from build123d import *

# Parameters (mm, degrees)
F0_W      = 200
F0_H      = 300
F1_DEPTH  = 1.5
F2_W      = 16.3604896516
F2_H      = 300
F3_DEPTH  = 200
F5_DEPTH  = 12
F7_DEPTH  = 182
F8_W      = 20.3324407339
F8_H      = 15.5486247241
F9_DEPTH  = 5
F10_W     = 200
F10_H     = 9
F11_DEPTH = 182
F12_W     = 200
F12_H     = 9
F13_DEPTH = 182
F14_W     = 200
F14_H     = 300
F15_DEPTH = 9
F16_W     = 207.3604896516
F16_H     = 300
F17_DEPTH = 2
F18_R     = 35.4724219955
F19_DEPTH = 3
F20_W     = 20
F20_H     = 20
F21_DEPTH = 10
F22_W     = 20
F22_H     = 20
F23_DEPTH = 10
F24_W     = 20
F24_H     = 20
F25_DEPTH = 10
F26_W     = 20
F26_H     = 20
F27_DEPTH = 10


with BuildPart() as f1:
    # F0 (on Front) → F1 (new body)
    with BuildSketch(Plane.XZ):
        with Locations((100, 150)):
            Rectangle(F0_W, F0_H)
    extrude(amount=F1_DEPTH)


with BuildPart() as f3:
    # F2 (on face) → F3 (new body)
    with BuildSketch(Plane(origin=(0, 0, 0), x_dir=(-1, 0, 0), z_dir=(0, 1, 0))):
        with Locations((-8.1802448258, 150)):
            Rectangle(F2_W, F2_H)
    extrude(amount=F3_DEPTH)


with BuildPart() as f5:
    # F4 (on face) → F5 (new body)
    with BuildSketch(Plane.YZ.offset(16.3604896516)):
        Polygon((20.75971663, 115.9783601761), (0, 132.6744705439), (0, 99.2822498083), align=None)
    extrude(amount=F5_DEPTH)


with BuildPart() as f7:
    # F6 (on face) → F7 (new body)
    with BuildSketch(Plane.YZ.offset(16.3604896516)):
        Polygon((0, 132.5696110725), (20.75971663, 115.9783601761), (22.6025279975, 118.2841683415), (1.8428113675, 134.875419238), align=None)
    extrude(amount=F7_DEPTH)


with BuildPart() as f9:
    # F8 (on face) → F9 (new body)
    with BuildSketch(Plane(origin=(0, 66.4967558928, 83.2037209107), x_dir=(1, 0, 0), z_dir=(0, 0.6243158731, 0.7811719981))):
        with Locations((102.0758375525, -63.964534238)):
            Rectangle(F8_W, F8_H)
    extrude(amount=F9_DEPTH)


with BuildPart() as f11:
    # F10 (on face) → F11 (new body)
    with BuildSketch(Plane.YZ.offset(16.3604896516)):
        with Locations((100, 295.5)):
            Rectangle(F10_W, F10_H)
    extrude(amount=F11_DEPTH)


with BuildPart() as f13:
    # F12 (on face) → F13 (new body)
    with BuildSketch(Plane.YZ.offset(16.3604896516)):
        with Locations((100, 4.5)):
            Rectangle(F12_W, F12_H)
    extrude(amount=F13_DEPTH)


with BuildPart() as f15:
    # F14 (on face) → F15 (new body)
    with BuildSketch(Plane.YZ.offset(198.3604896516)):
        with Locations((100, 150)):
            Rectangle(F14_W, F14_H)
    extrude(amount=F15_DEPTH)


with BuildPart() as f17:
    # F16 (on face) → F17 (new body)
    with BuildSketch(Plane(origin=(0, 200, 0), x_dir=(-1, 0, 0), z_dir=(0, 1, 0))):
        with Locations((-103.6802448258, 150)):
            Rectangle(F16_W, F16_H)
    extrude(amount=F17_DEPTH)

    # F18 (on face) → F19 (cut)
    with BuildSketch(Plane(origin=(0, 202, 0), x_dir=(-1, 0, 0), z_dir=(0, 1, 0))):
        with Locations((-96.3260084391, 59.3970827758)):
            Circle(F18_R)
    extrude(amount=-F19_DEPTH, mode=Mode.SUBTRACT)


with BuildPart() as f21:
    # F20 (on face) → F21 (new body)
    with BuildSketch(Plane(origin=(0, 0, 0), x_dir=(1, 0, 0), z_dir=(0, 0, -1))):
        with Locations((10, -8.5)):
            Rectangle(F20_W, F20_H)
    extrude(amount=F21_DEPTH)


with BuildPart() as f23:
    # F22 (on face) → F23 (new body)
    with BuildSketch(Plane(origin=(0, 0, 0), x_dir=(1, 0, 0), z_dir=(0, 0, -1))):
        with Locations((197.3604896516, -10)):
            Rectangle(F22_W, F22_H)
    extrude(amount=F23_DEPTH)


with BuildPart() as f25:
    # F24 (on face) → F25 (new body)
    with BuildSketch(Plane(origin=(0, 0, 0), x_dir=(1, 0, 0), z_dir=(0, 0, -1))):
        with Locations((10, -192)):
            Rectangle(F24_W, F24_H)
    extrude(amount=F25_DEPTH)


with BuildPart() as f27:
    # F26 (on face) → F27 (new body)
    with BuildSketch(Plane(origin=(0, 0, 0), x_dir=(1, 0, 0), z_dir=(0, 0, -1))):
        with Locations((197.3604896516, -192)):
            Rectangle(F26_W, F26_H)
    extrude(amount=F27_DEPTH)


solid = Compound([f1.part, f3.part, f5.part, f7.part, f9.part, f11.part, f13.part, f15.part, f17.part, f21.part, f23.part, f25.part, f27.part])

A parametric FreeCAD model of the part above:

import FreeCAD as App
import Part
import Sketcher

V = App.Vector
Q = App.Units.Quantity

doc = App.newDocument("Part")
body = doc.addObject("PartDesign::Body", "Body")

sketch1 = doc.addObject("Sketcher::SketchObject", "Sketch")
body.addObject(sketch1)
sketch1.AttachmentSupport = (doc.XZ_Plane, [""])
sketch1.MapMode = "FlatFace"
sketch1.addGeometry([
    Part.LineSegment(V(0, 300, 0), V(0, 0, 0)),
    Part.LineSegment(V(0, 0, 0), V(200, 0, 0)),
    Part.LineSegment(V(200, 0, 0), V(200, 300, 0)),
    Part.LineSegment(V(200, 300, 0), V(0, 300, 0)),
], False)
sketch1.addConstraint([
    Sketcher.Constraint("Coincident", 0, 2, 1, 1),
    Sketcher.Constraint("Coincident", 1, 2, 2, 1),
    Sketcher.Constraint("Coincident", 2, 2, 3, 1),
    Sketcher.Constraint("Coincident", 3, 2, 0, 1),
    Sketcher.Constraint("Vertical", 0),
    Sketcher.Constraint("Horizontal", 1),
    Sketcher.Constraint("Vertical", 2),
    Sketcher.Constraint("Horizontal", 3),
    Sketcher.Constraint("Coincident", 0, 2, -1, 1),
    Sketcher.Constraint("DistanceX", 1, 1, 1, 2, Q("200 mm")),
    Sketcher.Constraint("DistanceY", 0, 2, 0, 1, Q("300 mm")),
])
pad1 = doc.addObject("PartDesign::Pad", "Pad")
body.addObject(pad1)
pad1.Profile = sketch1
pad1.Length = 1.5
body2 = doc.addObject("PartDesign::Body", "Body001")

sketch2 = doc.addObject("Sketcher::SketchObject", "Sketch001")
body2.addObject(sketch2)
sketch2.AttachmentSupport = (doc.getObject("XZ_Plane001"), [""])
sketch2.MapMode = "FlatFace"
sketch2.addGeometry([
    Part.LineSegment(V(16, 300, 0), V(16, 0, 0)),
    Part.LineSegment(V(16, 0, 0), V(0, 0, 0)),
    Part.LineSegment(V(0, 0, 0), V(0, 300, 0)),
    Part.LineSegment(V(0, 300, 0), V(16, 300, 0)),
], False)
sketch2.addConstraint([
    Sketcher.Constraint("Coincident", 0, 2, 1, 1),
    Sketcher.Constraint("Coincident", 1, 2, 2, 1),
    Sketcher.Constraint("Coincident", 2, 2, 3, 1),
    Sketcher.Constraint("Coincident", 3, 2, 0, 1),
    Sketcher.Constraint("Vertical", 0),
    Sketcher.Constraint("Horizontal", 1),
    Sketcher.Constraint("Vertical", 2),
    Sketcher.Constraint("Horizontal", 3),
    Sketcher.Constraint("Coincident", 1, 2, -1, 1),
    Sketcher.Constraint("DistanceY", 0, 2, 0, 1, Q("300 mm")),
    Sketcher.Constraint("DistanceX", 1, 2, 1, 1, Q("16.36049 mm")),
])
pad2 = doc.addObject("PartDesign::Pad", "Pad001")
body2.addObject(pad2)
pad2.Profile = sketch2
pad2.Length = 200
pad2.Reversed = True
body3 = doc.addObject("PartDesign::Body", "Body002")

sketch3 = doc.addObject("Sketcher::SketchObject", "Sketch002")
body3.addObject(sketch3)
sketch3.AttachmentSupport = (doc.getObject("YZ_Plane002"), [""])
sketch3.MapMode = "FlatFace"
sketch3.AttachmentOffset = App.Placement(V(0, 0, 16.36049), App.Rotation())
sketch3.addGeometry([
    Part.LineSegment(V(21, 116, 0), V(0, 133, 0)),
    Part.LineSegment(V(0, 133, 0), V(0, 99, 0)),
    Part.LineSegment(V(0, 99, 0), V(21, 116, 0)),
], False)
sketch3.addConstraint([
    Sketcher.Constraint("Coincident", 0, 2, 1, 1),
    Sketcher.Constraint("Coincident", 1, 2, 2, 1),
    Sketcher.Constraint("Coincident", 2, 2, 0, 1),
    Sketcher.Constraint("Vertical", 1),
    Sketcher.Constraint("PointOnObject", 0, 2, -2),
    Sketcher.Constraint("Equal", 0, 2),
    Sketcher.Constraint("DistanceY", 1, 2, 1, 1, Q("33.392221 mm")),
    Sketcher.Constraint("Distance", 0, Q("26.640682 mm")),
    Sketcher.Constraint("DistanceY", -1, 1, 0, 2, Q("132.674471 mm")),
])
pad3 = doc.addObject("PartDesign::Pad", "Pad002")
body3.addObject(pad3)
pad3.Profile = sketch3
pad3.Length = 12
body4 = doc.addObject("PartDesign::Body", "Body003")

sketch4 = doc.addObject("Sketcher::SketchObject", "Sketch003")
body4.addObject(sketch4)
sketch4.AttachmentSupport = (doc.getObject("YZ_Plane003"), [""])
sketch4.MapMode = "FlatFace"
sketch4.AttachmentOffset = App.Placement(V(0, 0, 16.36049), App.Rotation())
sketch4.addGeometry([
    Part.LineSegment(V(0, 132.6, 0), V(20.8, 116, 0)),
    Part.LineSegment(V(20.8, 116, 0), V(22.6, 118.3, 0)),
    Part.LineSegment(V(22.6, 118.3, 0), V(1.8, 134.9, 0)),
    Part.LineSegment(V(1.8, 134.9, 0), V(0, 132.6, 0)),
], False)
sketch4.addConstraint([
    Sketcher.Constraint("Coincident", 0, 2, 1, 1),
    Sketcher.Constraint("Coincident", 1, 2, 2, 1),
    Sketcher.Constraint("Coincident", 2, 2, 3, 1),
    Sketcher.Constraint("Coincident", 3, 2, 0, 1),
    Sketcher.Constraint("PointOnObject", 3, 2, -2),
    Sketcher.Constraint("Perpendicular", 0, 1),
    Sketcher.Constraint("Perpendicular", 1, 2),
    Sketcher.Constraint("Perpendicular", 2, 3),
    Sketcher.Constraint("Distance", 0, Q("26.575091 mm")),
    Sketcher.Constraint("Distance", 1, Q("2.951729 mm")),
    Sketcher.Constraint("DistanceY", -1, 1, 0, 2, Q("115.97836 mm")),
    Sketcher.Constraint("DistanceY", -1, 1, 1, 2, Q("118.284168 mm")),
])
pad4 = doc.addObject("PartDesign::Pad", "Pad003")
body4.addObject(pad4)
pad4.Profile = sketch4
pad4.Length = 182
body5 = doc.addObject("PartDesign::Body", "Body004")

sketch5 = doc.addObject("Sketcher::SketchObject", "Sketch004")
body5.addObject(sketch5)
sketch5.Placement = App.Placement(V(0, 66.496756, 83.203721), App.Rotation(V(1, 0, 0), V(0, 0.781171998, -0.624315873), V(0, 0.624315873, 0.781171998), "ZXY"))
sketch5.addGeometry([
    Part.LineSegment(V(92, -56, 0), V(92, -72, 0)),
    Part.LineSegment(V(92, -72, 0), V(112, -72, 0)),
    Part.LineSegment(V(112, -72, 0), V(112, -56, 0)),
    Part.LineSegment(V(112, -56, 0), V(92, -56, 0)),
], False)
sketch5.addConstraint([
    Sketcher.Constraint("Coincident", 0, 2, 1, 1),
    Sketcher.Constraint("Coincident", 1, 2, 2, 1),
    Sketcher.Constraint("Coincident", 2, 2, 3, 1),
    Sketcher.Constraint("Coincident", 3, 2, 0, 1),
    Sketcher.Constraint("Vertical", 0),
    Sketcher.Constraint("Horizontal", 1),
    Sketcher.Constraint("Vertical", 2),
    Sketcher.Constraint("Horizontal", 3),
    Sketcher.Constraint("DistanceX", 1, 1, 1, 2, Q("20.332441 mm")),
    Sketcher.Constraint("DistanceY", 0, 2, 0, 1, Q("15.548625 mm")),
    Sketcher.Constraint("DistanceY", 2, 2, -1, 1, Q("56.190222 mm")),
    Sketcher.Constraint("DistanceX", -1, 1, 0, 2, Q("91.909617 mm")),
])
pad5 = doc.addObject("PartDesign::Pad", "Pad004")
body5.addObject(pad5)
pad5.Profile = sketch5
pad5.Length = 5
body6 = doc.addObject("PartDesign::Body", "Body005")

sketch6 = doc.addObject("Sketcher::SketchObject", "Sketch005")
body6.addObject(sketch6)
sketch6.AttachmentSupport = (doc.getObject("YZ_Plane005"), [""])
sketch6.MapMode = "FlatFace"
sketch6.AttachmentOffset = App.Placement(V(0, 0, 16.36049), App.Rotation())
sketch6.addGeometry([
    Part.LineSegment(V(0, 300, 0), V(0, 291, 0)),
    Part.LineSegment(V(0, 291, 0), V(200, 291, 0)),
    Part.LineSegment(V(200, 291, 0), V(200, 300, 0)),
    Part.LineSegment(V(200, 300, 0), V(0, 300, 0)),
], False)
sketch6.addConstraint([
    Sketcher.Constraint("Coincident", 0, 2, 1, 1),
    Sketcher.Constraint("Coincident", 1, 2, 2, 1),
    Sketcher.Constraint("Coincident", 2, 2, 3, 1),
    Sketcher.Constraint("Coincident", 3, 2, 0, 1),
    Sketcher.Constraint("Vertical", 0),
    Sketcher.Constraint("Horizontal", 1),
    Sketcher.Constraint("Vertical", 2),
    Sketcher.Constraint("Horizontal", 3),
    Sketcher.Constraint("PointOnObject", 0, 2, -2),
    Sketcher.Constraint("DistanceX", 1, 1, 1, 2, Q("200 mm")),
    Sketcher.Constraint("DistanceY", 0, 2, 0, 1, Q("9 mm")),
    Sketcher.Constraint("DistanceY", -1, 1, 0, 2, Q("291 mm")),
])
pad6 = doc.addObject("PartDesign::Pad", "Pad005")
body6.addObject(pad6)
pad6.Profile = sketch6
pad6.Length = 182
body7 = doc.addObject("PartDesign::Body", "Body006")

sketch7 = doc.addObject("Sketcher::SketchObject", "Sketch006")
body7.addObject(sketch7)
sketch7.AttachmentSupport = (doc.getObject("YZ_Plane006"), [""])
sketch7.MapMode = "FlatFace"
sketch7.AttachmentOffset = App.Placement(V(0, 0, 16.36049), App.Rotation())
sketch7.addGeometry([
    Part.LineSegment(V(0, 9, 0), V(0, 0, 0)),
    Part.LineSegment(V(0, 0, 0), V(200, 0, 0)),
    Part.LineSegment(V(200, 0, 0), V(200, 9, 0)),
    Part.LineSegment(V(200, 9, 0), V(0, 9, 0)),
], False)
sketch7.addConstraint([
    Sketcher.Constraint("Coincident", 0, 2, 1, 1),
    Sketcher.Constraint("Coincident", 1, 2, 2, 1),
    Sketcher.Constraint("Coincident", 2, 2, 3, 1),
    Sketcher.Constraint("Coincident", 3, 2, 0, 1),
    Sketcher.Constraint("Vertical", 0),
    Sketcher.Constraint("Horizontal", 1),
    Sketcher.Constraint("Vertical", 2),
    Sketcher.Constraint("Horizontal", 3),
    Sketcher.Constraint("Coincident", 0, 2, -1, 1),
    Sketcher.Constraint("DistanceX", 1, 1, 1, 2, Q("200 mm")),
    Sketcher.Constraint("DistanceY", 0, 2, 0, 1, Q("9 mm")),
])
pad7 = doc.addObject("PartDesign::Pad", "Pad006")
body7.addObject(pad7)
pad7.Profile = sketch7
pad7.Length = 182
body8 = doc.addObject("PartDesign::Body", "Body007")

sketch8 = doc.addObject("Sketcher::SketchObject", "Sketch007")
body8.addObject(sketch8)
sketch8.AttachmentSupport = (doc.getObject("YZ_Plane007"), [""])
sketch8.MapMode = "FlatFace"
sketch8.AttachmentOffset = App.Placement(V(0, 0, 198.36049), App.Rotation())
sketch8.addGeometry([
    Part.LineSegment(V(0, 300, 0), V(0, 0, 0)),
    Part.LineSegment(V(0, 0, 0), V(200, 0, 0)),
    Part.LineSegment(V(200, 0, 0), V(200, 300, 0)),
    Part.LineSegment(V(200, 300, 0), V(0, 300, 0)),
], False)
sketch8.addConstraint([
    Sketcher.Constraint("Coincident", 0, 2, 1, 1),
    Sketcher.Constraint("Coincident", 1, 2, 2, 1),
    Sketcher.Constraint("Coincident", 2, 2, 3, 1),
    Sketcher.Constraint("Coincident", 3, 2, 0, 1),
    Sketcher.Constraint("Vertical", 0),
    Sketcher.Constraint("Horizontal", 1),
    Sketcher.Constraint("Vertical", 2),
    Sketcher.Constraint("Horizontal", 3),
    Sketcher.Constraint("Coincident", 0, 2, -1, 1),
    Sketcher.Constraint("DistanceX", 1, 1, 1, 2, Q("200 mm")),
    Sketcher.Constraint("DistanceY", 0, 2, 0, 1, Q("300 mm")),
])
pad8 = doc.addObject("PartDesign::Pad", "Pad007")
body8.addObject(pad8)
pad8.Profile = sketch8
pad8.Length = 9
body9 = doc.addObject("PartDesign::Body", "Body008")

sketch9 = doc.addObject("Sketcher::SketchObject", "Sketch008")
body9.addObject(sketch9)
sketch9.AttachmentSupport = (doc.getObject("XZ_Plane008"), [""])
sketch9.MapMode = "FlatFace"
sketch9.AttachmentOffset = App.Placement(V(0, 0, -200), App.Rotation())
sketch9.addGeometry([
    Part.LineSegment(V(207, 300, 0), V(207, 0, 0)),
    Part.LineSegment(V(207, 0, 0), V(0, 0, 0)),
    Part.LineSegment(V(0, 0, 0), V(0, 300, 0)),
    Part.LineSegment(V(0, 300, 0), V(207, 300, 0)),
], False)
sketch9.addConstraint([
    Sketcher.Constraint("Coincident", 0, 2, 1, 1),
    Sketcher.Constraint("Coincident", 1, 2, 2, 1),
    Sketcher.Constraint("Coincident", 2, 2, 3, 1),
    Sketcher.Constraint("Coincident", 3, 2, 0, 1),
    Sketcher.Constraint("Vertical", 0),
    Sketcher.Constraint("Horizontal", 1),
    Sketcher.Constraint("Vertical", 2),
    Sketcher.Constraint("Horizontal", 3),
    Sketcher.Constraint("Coincident", 1, 2, -1, 1),
    Sketcher.Constraint("DistanceY", 0, 2, 0, 1, Q("300 mm")),
    Sketcher.Constraint("DistanceX", 1, 2, 1, 1, Q("207.36049 mm")),
])
pad9 = doc.addObject("PartDesign::Pad", "Pad008")
body9.addObject(pad9)
pad9.Profile = sketch9
pad9.Length = 2
pad9.Reversed = True

sketch10 = doc.addObject("Sketcher::SketchObject", "Sketch009")
body9.addObject(sketch10)
sketch10.AttachmentSupport = (doc.getObject("XZ_Plane008"), [""])
sketch10.MapMode = "FlatFace"
sketch10.AttachmentOffset = App.Placement(V(0, 0, -202), App.Rotation())
sketch10.addGeometry(Part.Circle(V(96, 59, 0), V(0, 0, 1), 35), False)
sketch10.addConstraint([
    Sketcher.Constraint("Diameter", 0, Q("70.944844 mm")),
    Sketcher.Constraint("DistanceX", -1, 1, 0, 3, Q("96.326008 mm")),
    Sketcher.Constraint("DistanceY", -1, 1, 0, 3, Q("59.397083 mm")),
])
pocket1 = doc.addObject("PartDesign::Pocket", "Pocket")
body9.addObject(pocket1)
pocket1.Profile = sketch10
pocket1.Length = 3
pocket1.Reversed = True
body10 = doc.addObject("PartDesign::Body", "Body009")

sketch11 = doc.addObject("Sketcher::SketchObject", "Sketch010")
body10.addObject(sketch11)
sketch11.AttachmentSupport = (doc.getObject("XY_Plane009"), [""])
sketch11.MapMode = "FlatFace"
sketch11.addGeometry([
    Part.LineSegment(V(0, -2, 0), V(0, 18, 0)),
    Part.LineSegment(V(0, 18, 0), V(20, 18, 0)),
    Part.LineSegment(V(20, 18, 0), V(20, -2, 0)),
    Part.LineSegment(V(20, -2, 0), V(0, -2, 0)),
], False)
sketch11.addConstraint([
    Sketcher.Constraint("Coincident", 0, 2, 1, 1),
    Sketcher.Constraint("Coincident", 1, 2, 2, 1),
    Sketcher.Constraint("Coincident", 2, 2, 3, 1),
    Sketcher.Constraint("Coincident", 3, 2, 0, 1),
    Sketcher.Constraint("Vertical", 0),
    Sketcher.Constraint("Horizontal", 1),
    Sketcher.Constraint("Vertical", 2),
    Sketcher.Constraint("Horizontal", 3),
    Sketcher.Constraint("PointOnObject", 0, 2, -2),
    Sketcher.Constraint("Equal", 3, 0),
    Sketcher.Constraint("DistanceX", 1, 1, 1, 2, Q("20 mm")),
    Sketcher.Constraint("DistanceY", -1, 1, 0, 2, Q("18.5 mm")),
])
pad10 = doc.addObject("PartDesign::Pad", "Pad009")
body10.addObject(pad10)
pad10.Profile = sketch11
pad10.Length = 10
pad10.Reversed = True
body11 = doc.addObject("PartDesign::Body", "Body010")

sketch12 = doc.addObject("Sketcher::SketchObject", "Sketch011")
body11.addObject(sketch12)
sketch12.AttachmentSupport = (doc.getObject("XY_Plane010"), [""])
sketch12.MapMode = "FlatFace"
sketch12.addGeometry([
    Part.LineSegment(V(187, 0, 0), V(187, 20, 0)),
    Part.LineSegment(V(187, 20, 0), V(207, 20, 0)),
    Part.LineSegment(V(207, 20, 0), V(207, 0, 0)),
    Part.LineSegment(V(207, 0, 0), V(187, 0, 0)),
], False)
sketch12.addConstraint([
    Sketcher.Constraint("Coincident", 0, 2, 1, 1),
    Sketcher.Constraint("Coincident", 1, 2, 2, 1),
    Sketcher.Constraint("Coincident", 2, 2, 3, 1),
    Sketcher.Constraint("Coincident", 3, 2, 0, 1),
    Sketcher.Constraint("Vertical", 0),
    Sketcher.Constraint("Horizontal", 1),
    Sketcher.Constraint("Vertical", 2),
    Sketcher.Constraint("Horizontal", 3),
    Sketcher.Constraint("PointOnObject", 2, 2, -1),
    Sketcher.Constraint("Equal", 3, 0),
    Sketcher.Constraint("DistanceX", 1, 1, 1, 2, Q("20 mm")),
    Sketcher.Constraint("DistanceX", -1, 1, 0, 2, Q("187.36049 mm")),
])
pad11 = doc.addObject("PartDesign::Pad", "Pad010")
body11.addObject(pad11)
pad11.Profile = sketch12
pad11.Length = 10
pad11.Reversed = True
body12 = doc.addObject("PartDesign::Body", "Body011")

sketch13 = doc.addObject("Sketcher::SketchObject", "Sketch012")
body12.addObject(sketch13)
sketch13.AttachmentSupport = (doc.getObject("XY_Plane011"), [""])
sketch13.MapMode = "FlatFace"
sketch13.addGeometry([
    Part.LineSegment(V(0, 182, 0), V(0, 202, 0)),
    Part.LineSegment(V(0, 202, 0), V(20, 202, 0)),
    Part.LineSegment(V(20, 202, 0), V(20, 182, 0)),
    Part.LineSegment(V(20, 182, 0), V(0, 182, 0)),
], False)
sketch13.addConstraint([
    Sketcher.Constraint("Coincident", 0, 2, 1, 1),
    Sketcher.Constraint("Coincident", 1, 2, 2, 1),
    Sketcher.Constraint("Coincident", 2, 2, 3, 1),
    Sketcher.Constraint("Coincident", 3, 2, 0, 1),
    Sketcher.Constraint("Vertical", 0),
    Sketcher.Constraint("Horizontal", 1),
    Sketcher.Constraint("Vertical", 2),
    Sketcher.Constraint("Horizontal", 3),
    Sketcher.Constraint("PointOnObject", 0, 2, -2),
    Sketcher.Constraint("Equal", 3, 0),
    Sketcher.Constraint("DistanceX", 1, 1, 1, 2, Q("20 mm")),
    Sketcher.Constraint("DistanceY", -1, 1, 0, 2, Q("202 mm")),
])
pad12 = doc.addObject("PartDesign::Pad", "Pad011")
body12.addObject(pad12)
pad12.Profile = sketch13
pad12.Length = 10
pad12.Reversed = True
body13 = doc.addObject("PartDesign::Body", "Body012")

sketch14 = doc.addObject("Sketcher::SketchObject", "Sketch013")
body13.addObject(sketch14)
sketch14.AttachmentSupport = (doc.getObject("XY_Plane012"), [""])
sketch14.MapMode = "FlatFace"
sketch14.addGeometry([
    Part.LineSegment(V(187, 182, 0), V(187, 202, 0)),
    Part.LineSegment(V(187, 202, 0), V(207, 202, 0)),
    Part.LineSegment(V(207, 202, 0), V(207, 182, 0)),
    Part.LineSegment(V(207, 182, 0), V(187, 182, 0)),
], False)
sketch14.addConstraint([
    Sketcher.Constraint("Coincident", 0, 2, 1, 1),
    Sketcher.Constraint("Coincident", 1, 2, 2, 1),
    Sketcher.Constraint("Coincident", 2, 2, 3, 1),
    Sketcher.Constraint("Coincident", 3, 2, 0, 1),
    Sketcher.Constraint("Vertical", 0),
    Sketcher.Constraint("Horizontal", 1),
    Sketcher.Constraint("Vertical", 2),
    Sketcher.Constraint("Horizontal", 3),
    Sketcher.Constraint("Equal", 3, 0),
    Sketcher.Constraint("DistanceX", 1, 1, 1, 2, Q("20 mm")),
    Sketcher.Constraint("DistanceY", -1, 1, 0, 2, Q("202 mm")),
    Sketcher.Constraint("DistanceX", -1, 1, 0, 2, Q("187.36049 mm")),
])
pad13 = doc.addObject("PartDesign::Pad", "Pad012")
body13.addObject(pad13)
pad13.Profile = sketch14
pad13.Length = 10
pad13.Reversed = True

doc.recompute()
